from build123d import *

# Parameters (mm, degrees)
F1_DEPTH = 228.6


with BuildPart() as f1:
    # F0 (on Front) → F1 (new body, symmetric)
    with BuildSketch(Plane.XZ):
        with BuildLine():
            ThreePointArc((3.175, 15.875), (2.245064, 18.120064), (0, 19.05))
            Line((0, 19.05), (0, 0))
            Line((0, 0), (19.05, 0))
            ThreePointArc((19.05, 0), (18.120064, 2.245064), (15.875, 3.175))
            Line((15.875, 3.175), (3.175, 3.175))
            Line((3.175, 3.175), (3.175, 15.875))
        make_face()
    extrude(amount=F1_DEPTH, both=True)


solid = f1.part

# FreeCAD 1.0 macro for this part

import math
import FreeCAD as App
import Part
import Sketcher
Q = App.Units.Quantity

doc = App.newDocument("Part")
body = doc.addObject("PartDesign::Body", "Body")

sketch1 = doc.addObject("Sketcher::SketchObject", "Sketch")
body.addObject(sketch1)
sketch1.AttachmentSupport = (doc.XZ_Plane, [""])
sketch1.MapMode = "FlatFace"
sketch1.addGeometry(Part.ArcOfCircle(Part.Circle(App.Vector(0, 15.9, 0), App.Vector(0, 0, 1), 3.2), math.radians(0), math.radians(90)), False)
sketch1.addGeometry(Part.LineSegment(App.Vector(0, 19.1, 0), App.Vector(0, 0, 0)), False)
sketch1.addGeometry(Part.LineSegment(App.Vector(0, 0, 0), App.Vector(19.1, 0, 0)), False)
sketch1.addGeometry(Part.ArcOfCircle(Part.Circle(App.Vector(15.9, 0, 0), App.Vector(0, 0, 1), 3.2), math.radians(0), math.radians(90)), False)
sketch1.addGeometry(Part.LineSegment(App.Vector(15.9, 3.2, 0), App.Vector(3.2, 3.2, 0)), False)
sketch1.addGeometry(Part.LineSegment(App.Vector(3.2, 3.2, 0), App.Vector(3.2, 15.9, 0)), False)
sketch1.addConstraint(Sketcher.Constraint("Coincident", 0, 2, 1, 1))
sketch1.addConstraint(Sketcher.Constraint("Coincident", 1, 2, 2, 1))
sketch1.addConstraint(Sketcher.Constraint("Coincident", 2, 2, 3, 1))
sketch1.addConstraint(Sketcher.Constraint("Tangent", 3, 2, 4, 1))
sketch1.addConstraint(Sketcher.Constraint("Coincident", 4, 2, 5, 1))
sketch1.addConstraint(Sketcher.Constraint("Tangent", 5, 2, 0, 1))
sketch1.addConstraint(Sketcher.Constraint("Vertical", 1))
sketch1.addConstraint(Sketcher.Constraint("Horizontal", 2))
sketch1.addConstraint(Sketcher.Constraint("Horizontal", 4))
sketch1.addConstraint(Sketcher.Constraint("Vertical", 5))
sketch1.addConstraint(Sketcher.Constraint("Coincident", 1, 2, -1, 1))
sketch1.addConstraint(Sketcher.Constraint("Equal", 0, 3))
sketch1.addConstraint(Sketcher.Constraint("PointOnObject", 0, 3, -2))
sketch1.addConstraint(Sketcher.Constraint("PointOnObject", 3, 3, -1))
sketch1.addConstraint(Sketcher.Constraint("Equal", 2, 1))
sketch1.addConstraint(Sketcher.Constraint("DistanceX", 4, 2, 4, 1, Q("0.5 in")))
sketch1.addConstraint(Sketcher.Constraint("Radius", 0, Q("0.125 in")))
pad1 = doc.addObject("PartDesign::Pad", "Pad")
body.addObject(pad1)
pad1.Profile = sketch1
pad1.Length = Q("18 in")
pad1.Midplane = True

doc.recompute()
